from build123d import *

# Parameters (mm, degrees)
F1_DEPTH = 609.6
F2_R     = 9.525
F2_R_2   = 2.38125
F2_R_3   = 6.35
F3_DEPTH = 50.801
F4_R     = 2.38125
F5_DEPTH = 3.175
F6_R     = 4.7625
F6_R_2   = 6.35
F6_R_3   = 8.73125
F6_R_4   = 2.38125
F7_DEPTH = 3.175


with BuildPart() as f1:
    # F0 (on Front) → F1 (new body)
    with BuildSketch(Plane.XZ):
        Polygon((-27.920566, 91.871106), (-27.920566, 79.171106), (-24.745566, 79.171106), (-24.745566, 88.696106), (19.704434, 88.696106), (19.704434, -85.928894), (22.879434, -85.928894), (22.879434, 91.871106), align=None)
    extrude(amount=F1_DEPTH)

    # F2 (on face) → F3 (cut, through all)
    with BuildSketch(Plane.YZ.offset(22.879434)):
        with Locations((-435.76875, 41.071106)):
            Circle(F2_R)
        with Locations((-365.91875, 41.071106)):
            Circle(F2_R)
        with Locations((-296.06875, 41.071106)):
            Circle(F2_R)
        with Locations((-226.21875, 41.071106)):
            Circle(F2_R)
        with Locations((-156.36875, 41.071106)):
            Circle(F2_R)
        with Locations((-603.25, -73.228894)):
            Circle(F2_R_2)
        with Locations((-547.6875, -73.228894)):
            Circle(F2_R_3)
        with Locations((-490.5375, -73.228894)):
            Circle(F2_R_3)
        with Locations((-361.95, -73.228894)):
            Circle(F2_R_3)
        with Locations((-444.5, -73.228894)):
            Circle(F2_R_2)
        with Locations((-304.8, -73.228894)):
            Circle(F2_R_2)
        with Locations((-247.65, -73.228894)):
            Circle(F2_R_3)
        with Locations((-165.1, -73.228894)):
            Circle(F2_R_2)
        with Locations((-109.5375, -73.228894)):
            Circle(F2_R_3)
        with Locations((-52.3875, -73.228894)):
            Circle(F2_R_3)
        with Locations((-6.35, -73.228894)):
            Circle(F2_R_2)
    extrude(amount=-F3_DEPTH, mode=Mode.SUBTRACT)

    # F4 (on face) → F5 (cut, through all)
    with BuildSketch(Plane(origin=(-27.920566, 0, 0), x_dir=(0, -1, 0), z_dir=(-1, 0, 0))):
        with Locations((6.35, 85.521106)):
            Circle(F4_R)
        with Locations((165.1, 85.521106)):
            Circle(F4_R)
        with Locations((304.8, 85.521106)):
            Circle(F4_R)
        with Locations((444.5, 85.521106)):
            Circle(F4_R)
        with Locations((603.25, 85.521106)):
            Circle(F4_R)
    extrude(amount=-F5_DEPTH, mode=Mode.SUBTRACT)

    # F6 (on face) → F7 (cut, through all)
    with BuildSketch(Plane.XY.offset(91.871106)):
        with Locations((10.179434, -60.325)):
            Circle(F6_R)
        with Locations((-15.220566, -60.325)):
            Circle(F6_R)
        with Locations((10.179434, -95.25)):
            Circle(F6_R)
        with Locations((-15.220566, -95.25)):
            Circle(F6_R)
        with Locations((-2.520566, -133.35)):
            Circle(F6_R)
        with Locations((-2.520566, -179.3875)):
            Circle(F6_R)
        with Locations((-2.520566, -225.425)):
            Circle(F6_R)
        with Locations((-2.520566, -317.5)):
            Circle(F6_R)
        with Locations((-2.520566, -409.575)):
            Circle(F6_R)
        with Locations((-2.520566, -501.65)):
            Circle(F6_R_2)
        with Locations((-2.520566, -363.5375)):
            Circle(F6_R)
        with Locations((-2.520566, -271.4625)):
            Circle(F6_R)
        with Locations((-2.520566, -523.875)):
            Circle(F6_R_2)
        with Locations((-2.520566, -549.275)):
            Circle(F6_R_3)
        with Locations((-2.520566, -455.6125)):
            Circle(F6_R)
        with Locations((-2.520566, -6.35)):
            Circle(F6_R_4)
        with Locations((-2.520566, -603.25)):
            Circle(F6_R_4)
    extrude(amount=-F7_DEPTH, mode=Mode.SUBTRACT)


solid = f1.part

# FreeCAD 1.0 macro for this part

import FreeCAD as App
import Part
import Sketcher

V = App.Vector
Q = App.Units.Quantity

doc = App.newDocument("Part")
body = doc.addObject("PartDesign::Body", "Body")

sketch1 = body.newObject("Sketcher::SketchObject", "Sketch")
sketch1.AttachmentSupport = (doc.getObject("XZ_Plane"), [""])
sketch1.MapMode = "FlatFace"
sketch1.addGeometry([
    Part.LineSegment(V(-27.920566, 91.871106, 0), V(-27.920566, 79.171106, 0)),
    Part.LineSegment(V(-27.920566, 79.171106, 0), V(-24.745566, 79.171106, 0)),
    Part.LineSegment(V(-24.745566, 79.171106, 0), V(-24.745566, 88.696106, 0)),
    Part.LineSegment(V(-24.745566, 88.696106, 0), V(19.704434, 88.696106, 0)),
    Part.LineSegment(V(19.704434, 88.696106, 0), V(19.704434, -85.928894, 0)),
    Part.LineSegment(V(19.704434, -85.928894, 0), V(22.879434, -85.928894, 0)),
    Part.LineSegment(V(22.879434, -85.928894, 0), V(22.879434, 91.871106, 0)),
    Part.LineSegment(V(22.879434, 91.871106, 0), V(-27.920566, 91.871106, 0)),
], False)
sketch1.addConstraint([
    Sketcher.Constraint("Coincident", 0, 2, 1, 1),
    Sketcher.Constraint("Coincident", 1, 2, 2, 1),
    Sketcher.Constraint("Coincident", 2, 2, 3, 1),
    Sketcher.Constraint("Coincident", 3, 2, 4, 1),
    Sketcher.Constraint("Coincident", 4, 2, 5, 1),
    Sketcher.Constraint("Coincident", 5, 2, 6, 1),
    Sketcher.Constraint("Coincident", 6, 2, 7, 1),
    Sketcher.Constraint("Coincident", 7, 2, 0, 1),
    Sketcher.Constraint("Vertical", 0),
    Sketcher.Constraint("Horizontal", 1),
    Sketcher.Constraint("Vertical", 2),
    Sketcher.Constraint("Horizontal", 3),
    Sketcher.Constraint("Vertical", 4),
    Sketcher.Constraint("Horizontal", 5),
    Sketcher.Constraint("Vertical", 6),
    Sketcher.Constraint("Horizontal", 7),
    Sketcher.Constraint("Equal", 1, 5),
    Sketcher.Constraint("DistanceX", 7, 2, 7, 1, Q("2 in")),
    Sketcher.Constraint("DistanceY", 6, 1, 6, 2, Q("7 in")),
    Sketcher.Constraint("DistanceY", 0, 2, 0, 1, Q("0.5 in")),
    Sketcher.Constraint("DistanceX", 3, 1, 3, 2, Q("1.75 in")),
    Sketcher.Constraint("DistanceY", 2, 1, 2, 2, Q("0.375 in")),
    Sketcher.Constraint("DistanceX", 0, 2, -1, 1, 27.920566),
    Sketcher.Constraint("DistanceY", -1, 1, 0, 2, 79.171106),
])
pad1 = body.newObject("PartDesign::Pad", "Pad")
pad1.Profile = sketch1
pad1.Length = Q("24 in")

sketch2 = body.newObject("Sketcher::SketchObject", "Sketch001")
sketch2.AttachmentSupport = (doc.getObject("YZ_Plane"), [""])
sketch2.MapMode = "FlatFace"
sketch2.AttachmentOffset = App.Placement(V(0, 0, 22.879434), App.Rotation())
sketch2.addGeometry([
    Part.Circle(V(-435.76875, 41.071106, 0), V(0, 0, 1), 9.525),
    Part.Circle(V(-365.91875, 41.071106, 0), V(0, 0, 1), 9.525),
    Part.Circle(V(-296.06875, 41.071106, 0), V(0, 0, 1), 9.525),
    Part.Circle(V(-226.21875, 41.071106, 0), V(0, 0, 1), 9.525),
    Part.Circle(V(-156.36875, 41.071106, 0), V(0, 0, 1), 9.525),
    Part.Circle(V(-603.25, -73.228894, 0), V(0, 0, 1), 2.38125),
    Part.Circle(V(-547.6875, -73.228894, 0), V(0, 0, 1), 6.35),
    Part.Circle(V(-490.5375, -73.228894, 0), V(0, 0, 1), 6.35),
    Part.Circle(V(-361.95, -73.228894, 0), V(0, 0, 1), 6.35),
    Part.Circle(V(-444.5, -73.228894, 0), V(0, 0, 1), 2.38125),
    Part.Circle(V(-304.8, -73.228894, 0), V(0, 0, 1), 2.38125),
    Part.Circle(V(-247.65, -73.228894, 0), V(0, 0, 1), 6.35),
    Part.Circle(V(-165.1, -73.228894, 0), V(0, 0, 1), 2.38125),
    Part.Circle(V(-109.5375, -73.228894, 0), V(0, 0, 1), 6.35),
    Part.Circle(V(-52.3875, -73.228894, 0), V(0, 0, 1), 6.35),
    Part.Circle(V(-6.35, -73.228894, 0), V(0, 0, 1), 2.38125),
], False)
sketch2.addConstraint([
    Sketcher.Constraint("Equal", 0, 1),
    Sketcher.Constraint("Equal", 1, 2),
    Sketcher.Constraint("Equal", 2, 3),
    Sketcher.Constraint("Equal", 3, 4),
    Sketcher.Constraint("Equal", 6, 7),
    Sketcher.Constraint("Equal", 7, 8),
    Sketcher.Constraint("Equal", 5, 9),
    Sketcher.Constraint("Equal", 9, 10),
    Sketcher.Constraint("Equal", 8, 11),
    Sketcher.Constraint("Equal", 10, 12),
    Sketcher.Constraint("Equal", 11, 13),
    Sketcher.Constraint("Equal", 13, 14),
    Sketcher.Constraint("Equal", 12, 15),
    Sketcher.Constraint("Horizontal", 0, 3, 1, 3),
    Sketcher.Constraint("Horizontal", 1, 3, 2, 3),
    Sketcher.Constraint("Horizontal", 2, 3, 3, 3),
    Sketcher.Constraint("Horizontal", 3, 3, 4, 3),
    Sketcher.Constraint("Horizontal", 5, 3, 6, 3),
    Sketcher.Constraint("Horizontal", 6, 3, 7, 3),
    Sketcher.Constraint("Horizontal", 7, 3, 8, 3),
    Sketcher.Constraint("Horizontal", 8, 3, 9, 3),
    Sketcher.Constraint("Horizontal", 9, 3, 10, 3),
    Sketcher.Constraint("Horizontal", 10, 3, 11, 3),
    Sketcher.Constraint("Horizontal", 11, 3, 12, 3),
    Sketcher.Constraint("Horizontal", 12, 3, 13, 3),
    Sketcher.Constraint("Horizontal", 13, 3, 14, 3),
    Sketcher.Constraint("Horizontal", 14, 3, 15, 3),
    Sketcher.Constraint("Diameter", 6, Q("0.5 in")),
    Sketcher.Constraint("Diameter", 0, Q("0.75 in")),
    Sketcher.Constraint("Diameter", 5, Q("0.1875 in")),
    Sketcher.Constraint("DistanceX", 10, 3, -1, 1, Q("12 in")),
    Sketcher.Constraint("DistanceX", 0, 3, 4, 3, Q("11 in")),
    Sketcher.Constraint("DistanceX", 9, 3, -1, 1, Q("17.5 in")),
    Sketcher.Constraint("DistanceX", 12, 3, -1, 1, Q("6.5 in")),
    Sketcher.Constraint("DistanceX", 0, 3, 2, 3, Q("5.5 in")),
    Sketcher.Constraint("DistanceX", 1, 3, 3, 3, Q("5.5 in")),
    Sketcher.Constraint("DistanceY", 5, 3, 0, 3, Q("4.5 in")),
    Sketcher.Constraint("DistanceX", 8, 3, 11, 3, Q("4.5 in")),
    Sketcher.Constraint("DistanceX", 11, 3, 15, 3, Q("9.5 in")),
    Sketcher.Constraint("DistanceX", 5, 3, -1, 1, Q("23.75 in")),
    Sketcher.Constraint("DistanceX", 8, 3, -1, 1, Q("14.25 in")),
    Sketcher.Constraint("DistanceX", 0, 3, 1, 3, Q("2.75 in")),
    Sketcher.Constraint("DistanceX", 6, 3, 7, 3, Q("2.25 in")),
    Sketcher.Constraint("DistanceX", 13, 3, 14, 3, Q("2.25 in")),
    Sketcher.Constraint("DistanceX", 0, 3, -1, 1, Q("17.15625 in")),
    Sketcher.Constraint("DistanceX", 6, 3, -1, 1, Q("21.5625 in")),
    Sketcher.Constraint("DistanceX", 13, 3, -1, 1, Q("4.3125 in")),
    Sketcher.Constraint("DistanceY", -1, 1, 0, 3, 41.071106),
])
pocket1 = body.newObject("PartDesign::Pocket", "Pocket")
pocket1.Profile = sketch2
pocket1.Type = "ThroughAll"

sketch3 = body.newObject("Sketcher::SketchObject", "Sketch002")
sketch3.AttachmentSupport = (doc.getObject("YZ_Plane"), [""])
sketch3.MapMode = "FlatFace"
sketch3.AttachmentOffset = App.Placement(V(0, 0, -27.920566), App.Rotation())
sketch3.addGeometry([
    Part.Circle(V(-6.35, 85.521106, 0), V(0, 0, 1), 2.38125),
    Part.Circle(V(-165.1, 85.521106, 0), V(0, 0, 1), 2.38125),
    Part.Circle(V(-304.8, 85.521106, 0), V(0, 0, 1), 2.38125),
    Part.Circle(V(-444.5, 85.521106, 0), V(0, 0, 1), 2.38125),
    Part.Circle(V(-603.25, 85.521106, 0), V(0, 0, 1), 2.38125),
], False)
sketch3.addConstraint([
    Sketcher.Constraint("Equal", 0, 1),
    Sketcher.Constraint("Equal", 1, 2),
    Sketcher.Constraint("Equal", 2, 3),
    Sketcher.Constraint("Equal", 3, 4),
    Sketcher.Constraint("Horizontal", 0, 3, 1, 3),
    Sketcher.Constraint("Horizontal", 1, 3, 2, 3),
    Sketcher.Constraint("Horizontal", 2, 3, 3, 3),
    Sketcher.Constraint("Horizontal", 3, 3, 4, 3),
    Sketcher.Constraint("Diameter", 0, Q("0.1875 in")),
    Sketcher.Constraint("DistanceX", 2, 3, -1, 1, Q("12 in")),
    Sketcher.Constraint("DistanceX", 3, 3, 1, 3, Q("11 in")),
    Sketcher.Constraint("DistanceX", 1, 3, -1, 1, Q("6.5 in")),
    Sketcher.Constraint("DistanceX", 4, 3, 0, 3, Q("23.5 in")),
    Sketcher.Constraint("DistanceX", 0, 3, -1, 1, Q("0.25 in")),
    Sketcher.Constraint("DistanceY", -1, 1, 0, 3, 85.521106),
])
pocket2 = body.newObject("PartDesign::Pocket", "Pocket001")
pocket2.Profile = sketch3
pocket2.Length = Q("0.125 in")
pocket2.Reversed = True

sketch4 = body.newObject("Sketcher::SketchObject", "Sketch003")
sketch4.AttachmentSupport = (doc.getObject("XY_Plane"), [""])
sketch4.MapMode = "FlatFace"
sketch4.AttachmentOffset = App.Placement(V(0, 0, 91.871106), App.Rotation())
sketch4.addGeometry([
    Part.Circle(V(10.179434, -60.325, 0), V(0, 0, 1), 4.7625),
    Part.Circle(V(-15.220566, -60.325, 0), V(0, 0, 1), 4.7625),
    Part.Circle(V(10.179434, -95.25, 0), V(0, 0, 1), 4.7625),
    Part.Circle(V(-15.220566, -95.25, 0), V(0, 0, 1), 4.7625),
    Part.Circle(V(-2.520566, -133.35, 0), V(0, 0, 1), 4.7625),
    Part.Circle(V(-2.520566, -179.3875, 0), V(0, 0, 1), 4.7625),
    Part.Circle(V(-2.520566, -225.425, 0), V(0, 0, 1), 4.7625),
    Part.Circle(V(-2.520566, -317.5, 0), V(0, 0, 1), 4.7625),
    Part.Circle(V(-2.520566, -409.575, 0), V(0, 0, 1), 4.7625),
    Part.Circle(V(-2.520566, -501.65, 0), V(0, 0, 1), 6.35),
    Part.Circle(V(-2.520566, -363.5375, 0), V(0, 0, 1), 4.7625),
    Part.Circle(V(-2.520566, -271.4625, 0), V(0, 0, 1), 4.7625),
    Part.Circle(V(-2.520566, -523.875, 0), V(0, 0, 1), 6.35),
    Part.Circle(V(-2.520566, -549.275, 0), V(0, 0, 1), 8.73125),
    Part.Circle(V(-2.520566, -455.6125, 0), V(0, 0, 1), 4.7625),
    Part.Circle(V(-2.520566, -6.35, 0), V(0, 0, 1), 2.38125),
    Part.Circle(V(-2.520566, -603.25, 0), V(0, 0, 1), 2.38125),
], False)
sketch4.addConstraint([
    Sketcher.Constraint("Equal", 0, 1),
    Sketcher.Constraint("Equal", 1, 2),
    Sketcher.Constraint("Equal", 2, 3),
    Sketcher.Constraint("Equal", 3, 4),
    Sketcher.Constraint("Equal", 4, 5),
    Sketcher.Constraint("Equal", 5, 6),
    Sketcher.Constraint("Equal", 6, 7),
    Sketcher.Constraint("Equal", 7, 8),
    Sketcher.Constraint("Equal", 8, 10),
    Sketcher.Constraint("Equal", 10, 11),
    Sketcher.Constraint("Equal", 9, 12),
    Sketcher.Constraint("Equal", 11, 14),
    Sketcher.Constraint("Equal", 15, 16),
    Sketcher.Constraint("Horizontal", 0, 3, 1, 3),
    Sketcher.Constraint("Horizontal", 2, 3, 3, 3),
    Sketcher.Constraint("Vertical", 0, 3, 2, 3),
    Sketcher.Constraint("Vertical", 1, 3, 3, 3),
    Sketcher.Constraint("Vertical", 4, 3, 5, 3),
    Sketcher.Constraint("Vertical", 5, 3, 6, 3),
    Sketcher.Constraint("Vertical", 6, 3, 7, 3),
    Sketcher.Constraint("Vertical", 7, 3, 8, 3),
    Sketcher.Constraint("Vertical", 8, 3, 9, 3),
    Sketcher.Constraint("Vertical", 9, 3, 10, 3),
    Sketcher.Constraint("Vertical", 10, 3, 11, 3),
    Sketcher.Constraint("Vertical", 11, 3, 12, 3),
    Sketcher.Constraint("Vertical", 12, 3, 13, 3),
    Sketcher.Constraint("Vertical", 13, 3, 14, 3),
    Sketcher.Constraint("Vertical", 14, 3, 15, 3),
    Sketcher.Constraint("Vertical", 15, 3, 16, 3),
    Sketcher.Constraint("Diameter", 9, Q("0.5 in")),
    Sketcher.Constraint("Diameter", 0, Q("0.375 in")),
    Sketcher.Constraint("Diameter", 13, Q("0.6875 in")),
    Sketcher.Constraint("Diameter", 15, Q("0.1875 in")),
    Sketcher.Constraint("DistanceX", 1, 3, 0, 3, Q("1 in")),
    Sketcher.Constraint("DistanceY", 13, 3, 12, 3, Q("1 in")),
    Sketcher.Constraint("DistanceY", 4, 3, 15, 3, Q("5 in")),
    Sketcher.Constraint("DistanceY", 16, 3, 9, 3, Q("4 in")),
    Sketcher.Constraint("DistanceY", 7, 3, -1, 1, Q("12.5 in")),
    Sketcher.Constraint("DistanceX", 4, 3, 2, 3, Q("0.5 in")),
    Sketcher.Constraint("DistanceY", 4, 3, 2, 3, Q("1.5 in")),
    Sketcher.Constraint("DistanceY", 6, 3, 0, 3, Q("6.5 in")),
    Sketcher.Constraint("DistanceY", 9, 3, 4, 3, Q("14.5 in")),
    Sketcher.Constraint("DistanceY", 12, 3, 8, 3, Q("4.5 in")),
    Sketcher.Constraint("DistanceY", 2, 3, -1, 1, Q("3.75 in")),
    Sketcher.Constraint("DistanceY", 8, 3, 6, 3, Q("7.25 in")),
    Sketcher.Constraint("DistanceY", 10, 3, 5, 3, Q("7.25 in")),
    Sketcher.Constraint("DistanceY", 0, 3, -1, 1, Q("2.375 in")),
    Sketcher.Constraint("DistanceY", 5, 3, -1, 1, Q("7.0625 in")),
    Sketcher.Constraint("DistanceY", 11, 3, -1, 1, Q("10.6875 in")),
    Sketcher.Constraint("DistanceY", 14, 3, -1, 1, Q("17.9375 in")),
    Sketcher.Constraint("DistanceX", -1, 1, 0, 3, 10.179434),
])
pocket3 = body.newObject("PartDesign::Pocket", "Pocket002")
pocket3.Profile = sketch4
pocket3.Type = "ThroughAll"

doc.recompute()
